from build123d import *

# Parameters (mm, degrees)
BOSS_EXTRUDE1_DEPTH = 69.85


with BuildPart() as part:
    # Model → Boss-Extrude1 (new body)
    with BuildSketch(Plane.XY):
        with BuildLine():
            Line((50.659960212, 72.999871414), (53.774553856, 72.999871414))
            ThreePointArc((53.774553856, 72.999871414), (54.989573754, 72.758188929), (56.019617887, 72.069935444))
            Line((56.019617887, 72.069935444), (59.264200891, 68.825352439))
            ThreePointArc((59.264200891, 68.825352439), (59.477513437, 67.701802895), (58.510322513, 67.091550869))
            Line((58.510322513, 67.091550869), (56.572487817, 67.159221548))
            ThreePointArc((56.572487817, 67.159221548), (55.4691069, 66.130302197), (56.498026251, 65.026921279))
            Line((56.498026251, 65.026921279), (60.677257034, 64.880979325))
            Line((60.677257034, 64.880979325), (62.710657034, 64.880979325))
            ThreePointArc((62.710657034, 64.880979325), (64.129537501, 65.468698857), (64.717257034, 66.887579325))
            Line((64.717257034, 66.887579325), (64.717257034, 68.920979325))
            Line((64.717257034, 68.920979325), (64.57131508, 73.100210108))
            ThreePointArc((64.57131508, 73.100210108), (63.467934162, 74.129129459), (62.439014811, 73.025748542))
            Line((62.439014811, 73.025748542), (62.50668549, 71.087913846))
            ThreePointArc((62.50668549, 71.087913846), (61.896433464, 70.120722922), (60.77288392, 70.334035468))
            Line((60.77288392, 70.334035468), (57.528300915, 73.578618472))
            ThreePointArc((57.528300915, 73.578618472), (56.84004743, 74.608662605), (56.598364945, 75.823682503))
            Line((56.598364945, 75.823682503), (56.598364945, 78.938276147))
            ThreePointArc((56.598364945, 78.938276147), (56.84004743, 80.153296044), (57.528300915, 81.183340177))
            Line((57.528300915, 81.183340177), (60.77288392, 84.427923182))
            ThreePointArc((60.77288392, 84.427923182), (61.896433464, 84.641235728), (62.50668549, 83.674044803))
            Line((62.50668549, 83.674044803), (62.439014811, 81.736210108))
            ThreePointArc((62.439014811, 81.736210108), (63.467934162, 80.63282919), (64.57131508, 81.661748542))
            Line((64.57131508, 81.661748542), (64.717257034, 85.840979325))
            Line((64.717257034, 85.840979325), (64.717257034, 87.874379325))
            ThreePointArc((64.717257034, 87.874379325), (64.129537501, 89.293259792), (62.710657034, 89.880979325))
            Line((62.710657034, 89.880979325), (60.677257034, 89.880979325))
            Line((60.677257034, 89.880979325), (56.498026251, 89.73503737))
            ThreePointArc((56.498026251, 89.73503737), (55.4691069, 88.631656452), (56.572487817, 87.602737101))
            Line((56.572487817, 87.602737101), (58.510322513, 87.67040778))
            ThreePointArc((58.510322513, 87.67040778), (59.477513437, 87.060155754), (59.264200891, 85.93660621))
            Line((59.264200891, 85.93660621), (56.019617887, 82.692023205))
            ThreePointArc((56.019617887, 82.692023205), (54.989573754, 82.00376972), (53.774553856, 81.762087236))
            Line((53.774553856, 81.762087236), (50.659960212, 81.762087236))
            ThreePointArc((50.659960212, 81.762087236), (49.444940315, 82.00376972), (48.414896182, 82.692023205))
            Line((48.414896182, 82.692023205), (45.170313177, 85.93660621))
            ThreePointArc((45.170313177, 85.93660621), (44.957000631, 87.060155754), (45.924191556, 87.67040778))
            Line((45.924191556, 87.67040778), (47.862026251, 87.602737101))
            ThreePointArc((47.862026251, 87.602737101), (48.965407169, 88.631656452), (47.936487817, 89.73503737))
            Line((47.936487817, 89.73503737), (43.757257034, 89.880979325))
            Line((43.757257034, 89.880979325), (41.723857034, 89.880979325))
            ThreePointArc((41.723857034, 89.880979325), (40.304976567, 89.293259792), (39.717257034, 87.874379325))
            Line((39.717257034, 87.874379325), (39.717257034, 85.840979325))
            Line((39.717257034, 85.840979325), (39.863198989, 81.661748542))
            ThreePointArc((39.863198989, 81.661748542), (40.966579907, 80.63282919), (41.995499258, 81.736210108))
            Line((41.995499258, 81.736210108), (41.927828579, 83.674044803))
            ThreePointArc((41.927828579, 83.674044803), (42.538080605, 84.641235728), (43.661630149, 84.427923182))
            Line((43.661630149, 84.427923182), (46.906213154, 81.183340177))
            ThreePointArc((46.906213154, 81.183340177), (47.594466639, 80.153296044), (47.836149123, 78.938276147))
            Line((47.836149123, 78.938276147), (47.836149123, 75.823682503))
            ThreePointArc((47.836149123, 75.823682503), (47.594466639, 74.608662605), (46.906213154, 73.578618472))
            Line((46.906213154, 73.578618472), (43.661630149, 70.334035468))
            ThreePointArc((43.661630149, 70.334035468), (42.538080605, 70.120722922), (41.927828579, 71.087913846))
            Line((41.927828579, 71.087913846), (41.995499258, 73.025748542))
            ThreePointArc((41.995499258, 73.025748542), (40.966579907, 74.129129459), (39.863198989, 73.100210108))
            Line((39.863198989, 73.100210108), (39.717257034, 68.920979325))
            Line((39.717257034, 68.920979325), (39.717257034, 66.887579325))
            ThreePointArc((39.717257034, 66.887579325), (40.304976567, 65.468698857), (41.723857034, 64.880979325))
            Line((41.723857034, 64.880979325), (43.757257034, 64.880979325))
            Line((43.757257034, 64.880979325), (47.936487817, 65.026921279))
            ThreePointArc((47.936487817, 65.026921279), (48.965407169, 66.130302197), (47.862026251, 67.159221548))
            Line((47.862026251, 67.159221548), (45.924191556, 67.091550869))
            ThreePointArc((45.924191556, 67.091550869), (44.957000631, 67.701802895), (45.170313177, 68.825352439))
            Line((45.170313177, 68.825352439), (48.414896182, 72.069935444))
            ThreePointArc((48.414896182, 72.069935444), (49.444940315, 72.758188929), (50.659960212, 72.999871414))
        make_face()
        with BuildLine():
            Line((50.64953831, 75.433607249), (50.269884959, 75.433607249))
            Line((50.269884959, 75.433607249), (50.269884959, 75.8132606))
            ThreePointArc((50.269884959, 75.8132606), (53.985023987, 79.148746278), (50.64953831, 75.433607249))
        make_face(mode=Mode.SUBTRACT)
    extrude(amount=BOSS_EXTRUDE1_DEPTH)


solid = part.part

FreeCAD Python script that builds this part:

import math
import FreeCAD as App
import Part
import Sketcher
from FreeCAD import Vector
Q = App.Units.Quantity

doc = App.newDocument("Part")
body = doc.addObject("PartDesign::Body", "Body")

# Sketch on XY plane
sketch1 = doc.addObject("Sketcher::SketchObject", "Sketch")
body.addObject(sketch1)
sketch1.AttachmentSupport = (doc.XY_Plane, [""])
sketch1.MapMode = "FlatFace"
sketch1.addGeometry([
    Part.LineSegment(Vector(50.66, 73, 0), Vector(53.77, 73, 0)),  # 0
    Part.ArcOfCircle(Part.Circle(Vector(53.77, 69.82, 0), Vector(0, 0, 1), 3.18), math.radians(45), math.radians(90)),  # 1
    Part.LineSegment(Vector(56.02, 72.07, 0), Vector(59.26, 68.83, 0)),  # 2
    Part.ArcOfCircle(Part.Circle(Vector(58.55, 68.11, 0), Vector(0, 0, 1), 1.02), math.radians(-92), math.radians(45)),  # 3
    Part.LineSegment(Vector(58.51, 67.09, 0), Vector(56.57, 67.16, 0)),  # 4
    Part.ArcOfCircle(Part.Circle(Vector(56.54, 66.09, 0), Vector(0, 0, 1), 1.07), math.radians(88), math.radians(268)),  # 5
    Part.LineSegment(Vector(56.5, 65.03, 0), Vector(60.68, 64.88, 0)),  # 6
    Part.LineSegment(Vector(60.68, 64.88, 0), Vector(62.71, 64.88, 0)),  # 7
    Part.ArcOfCircle(Part.Circle(Vector(62.71, 66.89, 0), Vector(0, 0, 1), 2.01), math.radians(-90), math.radians(0)),  # 8
    Part.LineSegment(Vector(64.72, 66.89, 0), Vector(64.72, 68.92, 0)),  # 9
    Part.LineSegment(Vector(64.72, 68.92, 0), Vector(64.57, 73.1, 0)),  # 10
    Part.ArcOfCircle(Part.Circle(Vector(63.51, 73.06, 0), Vector(0, 0, 1), 1.07), math.radians(2), math.radians(182)),  # 11
    Part.LineSegment(Vector(62.44, 73.03, 0), Vector(62.51, 71.09, 0)),  # 12
    Part.ArcOfCircle(Part.Circle(Vector(61.49, 71.05, 0), Vector(0, 0, 1), 1.02), math.radians(-135), math.radians(2)),  # 13
    Part.LineSegment(Vector(60.77, 70.33, 0), Vector(57.53, 73.58, 0)),  # 14
    Part.ArcOfCircle(Part.Circle(Vector(59.77, 75.82, 0), Vector(0, 0, 1), 3.18), math.radians(-180), math.radians(-135)),  # 15
    Part.LineSegment(Vector(56.6, 75.82, 0), Vector(56.6, 78.94, 0)),  # 16
    Part.ArcOfCircle(Part.Circle(Vector(59.77, 78.94, 0), Vector(0, 0, 1), 3.18), math.radians(135), math.radians(180)),  # 17
    Part.LineSegment(Vector(57.53, 81.18, 0), Vector(60.77, 84.43, 0)),  # 18
    Part.ArcOfCircle(Part.Circle(Vector(61.49, 83.71, 0), Vector(0, 0, 1), 1.02), math.radians(-2), math.radians(135)),  # 19
    Part.LineSegment(Vector(62.51, 83.67, 0), Vector(62.44, 81.74, 0)),  # 20
    Part.ArcOfCircle(Part.Circle(Vector(63.51, 81.7, 0), Vector(0, 0, 1), 1.07), math.radians(178), math.radians(358)),  # 21
    Part.LineSegment(Vector(64.57, 81.66, 0), Vector(64.72, 85.84, 0)),  # 22
    Part.LineSegment(Vector(64.72, 85.84, 0), Vector(64.72, 87.87, 0)),  # 23
    Part.ArcOfCircle(Part.Circle(Vector(62.71, 87.87, 0), Vector(0, 0, 1), 2.01), math.radians(0), math.radians(90)),  # 24
    Part.LineSegment(Vector(62.71, 89.88, 0), Vector(60.68, 89.88, 0)),  # 25
    Part.LineSegment(Vector(60.68, 89.88, 0), Vector(56.5, 89.74, 0)),  # 26
    Part.ArcOfCircle(Part.Circle(Vector(56.54, 88.67, 0), Vector(0, 0, 1), 1.07), math.radians(92), math.radians(272)),  # 27
    Part.LineSegment(Vector(56.57, 87.6, 0), Vector(58.51, 87.67, 0)),  # 28
    Part.ArcOfCircle(Part.Circle(Vector(58.55, 86.66, 0), Vector(0, 0, 1), 1.02), math.radians(-45), math.radians(92)),  # 29
    Part.LineSegment(Vector(59.26, 85.94, 0), Vector(56.02, 82.69, 0)),  # 30
    Part.ArcOfCircle(Part.Circle(Vector(53.77, 84.94, 0), Vector(0, 0, 1), 3.18), math.radians(-90), math.radians(-45)),  # 31
    Part.LineSegment(Vector(53.77, 81.76, 0), Vector(50.66, 81.76, 0)),  # 32
    Part.ArcOfCircle(Part.Circle(Vector(50.66, 84.94, 0), Vector(0, 0, 1), 3.18), math.radians(-135), math.radians(-90)),  # 33
    Part.LineSegment(Vector(48.41, 82.69, 0), Vector(45.17, 85.94, 0)),  # 34
    Part.ArcOfCircle(Part.Circle(Vector(45.89, 86.66, 0), Vector(0, 0, 1), 1.02), math.radians(88), math.radians(225)),  # 35
    Part.LineSegment(Vector(45.92, 87.67, 0), Vector(47.86, 87.6, 0)),  # 36
    Part.ArcOfCircle(Part.Circle(Vector(47.9, 88.67, 0), Vector(0, 0, 1), 1.07), math.radians(-92), math.radians(88)),  # 37
    Part.LineSegment(Vector(47.94, 89.74, 0), Vector(43.76, 89.88, 0)),  # 38
    Part.LineSegment(Vector(43.76, 89.88, 0), Vector(41.72, 89.88, 0)),  # 39
    Part.ArcOfCircle(Part.Circle(Vector(41.72, 87.87, 0), Vector(0, 0, 1), 2.01), math.radians(90), math.radians(180)),  # 40
    Part.LineSegment(Vector(39.72, 87.87, 0), Vector(39.72, 85.84, 0)),  # 41
    Part.LineSegment(Vector(39.72, 85.84, 0), Vector(39.86, 81.66, 0)),  # 42
    Part.ArcOfCircle(Part.Circle(Vector(40.93, 81.7, 0), Vector(0, 0, 1), 1.07), math.radians(-178), math.radians(2)),  # 43
    Part.LineSegment(Vector(42, 81.74, 0), Vector(41.93, 83.67, 0)),  # 44
    Part.ArcOfCircle(Part.Circle(Vector(42.94, 83.71, 0), Vector(0, 0, 1), 1.02), math.radians(45), math.radians(182)),  # 45
    Part.LineSegment(Vector(43.66, 84.43, 0), Vector(46.91, 81.18, 0)),  # 46
    Part.ArcOfCircle(Part.Circle(Vector(44.66, 78.94, 0), Vector(0, 0, 1), 3.18), math.radians(0), math.radians(45)),  # 47
    Part.LineSegment(Vector(47.84, 78.94, 0), Vector(47.84, 75.82, 0)),  # 48
    Part.ArcOfCircle(Part.Circle(Vector(44.66, 75.82, 0), Vector(0, 0, 1), 3.18), math.radians(-45), math.radians(0)),  # 49
    Part.LineSegment(Vector(46.91, 73.58, 0), Vector(43.66, 70.33, 0)),  # 50
    Part.ArcOfCircle(Part.Circle(Vector(42.94, 71.05, 0), Vector(0, 0, 1), 1.02), math.radians(178), math.radians(315)),  # 51
    Part.LineSegment(Vector(41.93, 71.09, 0), Vector(42, 73.03, 0)),  # 52
    Part.ArcOfCircle(Part.Circle(Vector(40.93, 73.06, 0), Vector(0, 0, 1), 1.07), math.radians(-2), math.radians(178)),  # 53
    Part.LineSegment(Vector(39.86, 73.1, 0), Vector(39.72, 68.92, 0)),  # 54
    Part.LineSegment(Vector(39.72, 68.92, 0), Vector(39.72, 66.89, 0)),  # 55
    Part.ArcOfCircle(Part.Circle(Vector(41.72, 66.89, 0), Vector(0, 0, 1), 2.01), math.radians(180), math.radians(270)),  # 56
    Part.LineSegment(Vector(41.72, 64.88, 0), Vector(43.76, 64.88, 0)),  # 57
    Part.LineSegment(Vector(43.76, 64.88, 0), Vector(47.94, 65.03, 0)),  # 58
    Part.ArcOfCircle(Part.Circle(Vector(47.9, 66.09, 0), Vector(0, 0, 1), 1.07), math.radians(-88), math.radians(92)),  # 59
    Part.LineSegment(Vector(47.86, 67.16, 0), Vector(45.92, 67.09, 0)),  # 60
    Part.ArcOfCircle(Part.Circle(Vector(45.89, 68.11, 0), Vector(0, 0, 1), 1.02), math.radians(135), math.radians(272)),  # 61
    Part.LineSegment(Vector(45.17, 68.83, 0), Vector(48.41, 72.07, 0)),  # 62
    Part.ArcOfCircle(Part.Circle(Vector(50.66, 69.82, 0), Vector(0, 0, 1), 3.18), math.radians(90), math.radians(135)),  # 63
    Part.ArcOfCircle(Part.Circle(Vector(52.22, 77.38, 0), Vector(0, 0, 1), 2.5), math.radians(-129), math.radians(219)),  # 64
    Part.LineSegment(Vector(50.65, 75.43, 0), Vector(50.27, 75.43, 0)),  # 65
    Part.LineSegment(Vector(50.27, 75.43, 0), Vector(50.27, 75.81, 0)),  # 66
], False)
sketch1.addConstraint([
    Sketcher.Constraint("Tangent", 0, 2, 1, 2),
    Sketcher.Constraint("Tangent", 1, 1, 2, 1),
    Sketcher.Constraint("Tangent", 2, 2, 3, 2),
    Sketcher.Constraint("Tangent", 3, 1, 4, 1),
    Sketcher.Constraint("Tangent", 4, 2, 5, 1),
    Sketcher.Constraint("Tangent", 5, 2, 6, 1),
    Sketcher.Constraint("Coincident", 6, 2, 7, 1),
    Sketcher.Constraint("Tangent", 7, 2, 8, 1),
    Sketcher.Constraint("Tangent", 8, 2, 9, 1),
    Sketcher.Constraint("Coincident", 9, 2, 10, 1),
    Sketcher.Constraint("Tangent", 10, 2, 11, 1),
    Sketcher.Constraint("Tangent", 11, 2, 12, 1),
    Sketcher.Constraint("Tangent", 12, 2, 13, 2),
    Sketcher.Constraint("Tangent", 13, 1, 14, 1),
    Sketcher.Constraint("Tangent", 14, 2, 15, 2),
    Sketcher.Constraint("Tangent", 15, 1, 16, 1),
    Sketcher.Constraint("Tangent", 16, 2, 17, 2),
    Sketcher.Constraint("Tangent", 17, 1, 18, 1),
    Sketcher.Constraint("Tangent", 18, 2, 19, 2),
    Sketcher.Constraint("Tangent", 19, 1, 20, 1),
    Sketcher.Constraint("Tangent", 20, 2, 21, 1),
    Sketcher.Constraint("Tangent", 21, 2, 22, 1),
    Sketcher.Constraint("Coincident", 22, 2, 23, 1),
    Sketcher.Constraint("Tangent", 23, 2, 24, 1),
    Sketcher.Constraint("Tangent", 24, 2, 25, 1),
    Sketcher.Constraint("Coincident", 25, 2, 26, 1),
    Sketcher.Constraint("Tangent", 26, 2, 27, 1),
    Sketcher.Constraint("Tangent", 27, 2, 28, 1),
    Sketcher.Constraint("Tangent", 28, 2, 29, 2),
    Sketcher.Constraint("Tangent", 29, 1, 30, 1),
    Sketcher.Constraint("Tangent", 30, 2, 31, 2),
    Sketcher.Constraint("Tangent", 31, 1, 32, 1),
    Sketcher.Constraint("Tangent", 32, 2, 33, 2),
    Sketcher.Constraint("Tangent", 33, 1, 34, 1),
    Sketcher.Constraint("Tangent", 34, 2, 35, 2),
    Sketcher.Constraint("Tangent", 35, 1, 36, 1),
    Sketcher.Constraint("Tangent", 36, 2, 37, 1),
    Sketcher.Constraint("Tangent", 37, 2, 38, 1),
    Sketcher.Constraint("Coincident", 38, 2, 39, 1),
    Sketcher.Constraint("Tangent", 39, 2, 40, 1),
    Sketcher.Constraint("Tangent", 40, 2, 41, 1),
    Sketcher.Constraint("Coincident", 41, 2, 42, 1),
    Sketcher.Constraint("Tangent", 42, 2, 43, 1),
    Sketcher.Constraint("Tangent", 43, 2, 44, 1),
    Sketcher.Constraint("Tangent", 44, 2, 45, 2),
    Sketcher.Constraint("Tangent", 45, 1, 46, 1),
    Sketcher.Constraint("Tangent", 46, 2, 47, 2),
    Sketcher.Constraint("Tangent", 47, 1, 48, 1),
    Sketcher.Constraint("Tangent", 48, 2, 49, 2),
    Sketcher.Constraint("Tangent", 49, 1, 50, 1),
    Sketcher.Constraint("Tangent", 50, 2, 51, 2),
    Sketcher.Constraint("Tangent", 51, 1, 52, 1),
    Sketcher.Constraint("Tangent", 52, 2, 53, 1),
    Sketcher.Constraint("Tangent", 53, 2, 54, 1),
    Sketcher.Constraint("Coincident", 54, 2, 55, 1),
    Sketcher.Constraint("Tangent", 55, 2, 56, 1),
    Sketcher.Constraint("Tangent", 56, 2, 57, 1),
    Sketcher.Constraint("Coincident", 57, 2, 58, 1),
    Sketcher.Constraint("Tangent", 58, 2, 59, 1),
    Sketcher.Constraint("Tangent", 59, 2, 60, 1),
    Sketcher.Constraint("Tangent", 60, 2, 61, 2),
    Sketcher.Constraint("Tangent", 61, 1, 62, 1),
    Sketcher.Constraint("Tangent", 62, 2, 63, 2),
    Sketcher.Constraint("Tangent", 63, 1, 0, 1),
    Sketcher.Constraint("Coincident", 64, 1, 65, 1),
    Sketcher.Constraint("Coincident", 65, 2, 66, 1),
    Sketcher.Constraint("Coincident", 66, 2, 64, 2),
    Sketcher.Constraint("Horizontal", 0),
    Sketcher.Constraint("Horizontal", 7),
    Sketcher.Constraint("Vertical", 9),
    Sketcher.Constraint("Vertical", 16),
    Sketcher.Constraint("Vertical", 23),
    Sketcher.Constraint("Horizontal", 25),
    Sketcher.Constraint("Horizontal", 32),
    Sketcher.Constraint("Horizontal", 39),
    Sketcher.Constraint("Vertical", 41),
    Sketcher.Constraint("Vertical", 48),
    Sketcher.Constraint("Vertical", 55),
    Sketcher.Constraint("Horizontal", 57),
    Sketcher.Constraint("Horizontal", 65),
    Sketcher.Constraint("Vertical", 66),
    Sketcher.Constraint("Equal", 5, 11),
    Sketcher.Constraint("Equal", 3, 13),
    Sketcher.Constraint("Equal", 1, 15),
    Sketcher.Constraint("Equal", 15, 17),
    Sketcher.Constraint("Equal", 13, 19),
    Sketcher.Constraint("Equal", 11, 21),
    Sketcher.Constraint("Equal", 8, 24),
    Sketcher.Constraint("Equal", 21, 27),
    Sketcher.Constraint("Equal", 19, 29),
    Sketcher.Constraint("Equal", 17, 31),
    Sketcher.Constraint("Equal", 31, 33),
    Sketcher.Constraint("Equal", 29, 35),
    Sketcher.Constraint("Equal", 27, 37),
    Sketcher.Constraint("Equal", 24, 40),
    Sketcher.Constraint("Equal", 37, 43),
    Sketcher.Constraint("Equal", 35, 45),
    Sketcher.Constraint("Equal", 33, 47),
    Sketcher.Constraint("Equal", 47, 49),
    Sketcher.Constraint("Equal", 45, 51),
    Sketcher.Constraint("Equal", 43, 53),
    Sketcher.Constraint("Equal", 40, 56),
    Sketcher.Constraint("Equal", 53, 59),
    Sketcher.Constraint("Equal", 51, 61),
    Sketcher.Constraint("Equal", 49, 63),
    Sketcher.Constraint("Parallel", 4, 6),
    Sketcher.Constraint("Parallel", 10, 12),
    Sketcher.Constraint("Parallel", 2, 14),
    Sketcher.Constraint("Perpendicular", 14, 18),
    Sketcher.Constraint("Perpendicular", 6, 20),
    Sketcher.Constraint("Parallel", 20, 22),
    Sketcher.Constraint("Perpendicular", 12, 26),
    Sketcher.Constraint("Parallel", 26, 28),
    Sketcher.Constraint("Parallel", 18, 30),
    Sketcher.Constraint("Perpendicular", 30, 34),
    Sketcher.Constraint("Perpendicular", 22, 36),
    Sketcher.Constraint("Parallel", 36, 38),
    Sketcher.Constraint("Perpendicular", 28, 42),
    Sketcher.Constraint("Parallel", 42, 44),
    Sketcher.Constraint("Parallel", 34, 46),
    Sketcher.Constraint("Perpendicular", 46, 50),
    Sketcher.Constraint("Perpendicular", 38, 52),
    Sketcher.Constraint("Parallel", 52, 54),
    Sketcher.Constraint("Perpendicular", 44, 58),
    Sketcher.Constraint("Parallel", 58, 60),
    Sketcher.Constraint("Parallel", 50, 62),
    Sketcher.Constraint("Horizontal", 29, 3, 35, 3),
    Sketcher.Constraint("Horizontal", 27, 3, 37, 3),
    Sketcher.Constraint("Horizontal", 24, 3, 40, 3),
    Sketcher.Constraint("Horizontal", 21, 3, 43, 3),
    Sketcher.Constraint("Horizontal", 19, 3, 45, 3),
    Sketcher.Constraint("Horizontal", 17, 3, 47, 3),
    Sketcher.Constraint("Horizontal", 15, 3, 49, 3),
    Sketcher.Constraint("Horizontal", 13, 3, 51, 3),
    Sketcher.Constraint("Horizontal", 11, 3, 53, 3),
    Sketcher.Constraint("Horizontal", 8, 3, 56, 3),
    Sketcher.Constraint("Horizontal", 5, 3, 59, 3),
    Sketcher.Constraint("Horizontal", 3, 3, 61, 3),
    Sketcher.Constraint("Horizontal", 30, 2, 33, 1),
    Sketcher.Constraint("Horizontal", 22, 2, 41, 2),
    Sketcher.Constraint("Horizontal", 21, 2, 42, 2),
    Sketcher.Constraint("Horizontal", 9, 2, 54, 2),
    Sketcher.Constraint("Vertical", 13, 3, 19, 3),
    Sketcher.Constraint("Vertical", 11, 3, 21, 3),
    Sketcher.Constraint("Vertical", 8, 3, 24, 3),
    Sketcher.Constraint("Vertical", 5, 3, 27, 3),
    Sketcher.Constraint("Vertical", 3, 3, 29, 3),
    Sketcher.Constraint("Vertical", 1, 3, 31, 3),
    Sketcher.Constraint("Vertical", 37, 3, 59, 3),
    Sketcher.Constraint("Vertical", 6, 2, 25, 2),
    Sketcher.Constraint("Equal", 25, 39),
    Sketcher.Constraint("Equal", 57, 9),
    Sketcher.Constraint("Equal", 32, 16),
    Sketcher.Constraint("Equal", 9, 23),
    Sketcher.Constraint("Equal", 65, 66),
    Sketcher.Constraint("Equal", 6, 10),
    Sketcher.Constraint("Equal", 4, 12),
    Sketcher.Constraint("Equal", 2, 14),
    Sketcher.Constraint("Radius", 3, Q("0.04 in")),
    Sketcher.Constraint("Angle", 4, Q("178 deg")),
    Sketcher.Constraint("Radius", 1, Q("0.125 in")),
    Sketcher.Constraint("Radius", 5, Q("0.042 in")),
    Sketcher.Constraint("Radius", 8, Q("0.079 in")),
    Sketcher.Constraint("Radius", 64, 2.5),
    Sketcher.Constraint("DistanceX", 7, 1, 7, 2, 2.0334),
    Sketcher.Constraint("DistanceX", -1, 1, 2, 2, 59.264201),
    Sketcher.Constraint("DistanceX", -1, 1, 14, 2, 57.528301),
    Sketcher.Constraint("DistanceX", -1, 1, 42, 2, 39.863199),
    Sketcher.Constraint("Distance", 6, 4.181778),
    Sketcher.Constraint("DistanceX", 0, 1, 0, 2, 3.114594),
    Sketcher.Constraint("DistanceX", 65, 2, 65, 1, 0.379653),
    Sketcher.Constraint("DistanceY", -1, 1, 1, 3, 69.824871),
    Sketcher.Constraint("DistanceY", -1, 1, 64, 3, 77.380979),
    Sketcher.Constraint("DistanceX", -1, 1, 64, 1, 50.649538),
])
pad1 = doc.addObject("PartDesign::Pad", "Pad")
body.addObject(pad1)
pad1.Profile = sketch1
pad1.Length = Q("2.75 in")

doc.recompute()
